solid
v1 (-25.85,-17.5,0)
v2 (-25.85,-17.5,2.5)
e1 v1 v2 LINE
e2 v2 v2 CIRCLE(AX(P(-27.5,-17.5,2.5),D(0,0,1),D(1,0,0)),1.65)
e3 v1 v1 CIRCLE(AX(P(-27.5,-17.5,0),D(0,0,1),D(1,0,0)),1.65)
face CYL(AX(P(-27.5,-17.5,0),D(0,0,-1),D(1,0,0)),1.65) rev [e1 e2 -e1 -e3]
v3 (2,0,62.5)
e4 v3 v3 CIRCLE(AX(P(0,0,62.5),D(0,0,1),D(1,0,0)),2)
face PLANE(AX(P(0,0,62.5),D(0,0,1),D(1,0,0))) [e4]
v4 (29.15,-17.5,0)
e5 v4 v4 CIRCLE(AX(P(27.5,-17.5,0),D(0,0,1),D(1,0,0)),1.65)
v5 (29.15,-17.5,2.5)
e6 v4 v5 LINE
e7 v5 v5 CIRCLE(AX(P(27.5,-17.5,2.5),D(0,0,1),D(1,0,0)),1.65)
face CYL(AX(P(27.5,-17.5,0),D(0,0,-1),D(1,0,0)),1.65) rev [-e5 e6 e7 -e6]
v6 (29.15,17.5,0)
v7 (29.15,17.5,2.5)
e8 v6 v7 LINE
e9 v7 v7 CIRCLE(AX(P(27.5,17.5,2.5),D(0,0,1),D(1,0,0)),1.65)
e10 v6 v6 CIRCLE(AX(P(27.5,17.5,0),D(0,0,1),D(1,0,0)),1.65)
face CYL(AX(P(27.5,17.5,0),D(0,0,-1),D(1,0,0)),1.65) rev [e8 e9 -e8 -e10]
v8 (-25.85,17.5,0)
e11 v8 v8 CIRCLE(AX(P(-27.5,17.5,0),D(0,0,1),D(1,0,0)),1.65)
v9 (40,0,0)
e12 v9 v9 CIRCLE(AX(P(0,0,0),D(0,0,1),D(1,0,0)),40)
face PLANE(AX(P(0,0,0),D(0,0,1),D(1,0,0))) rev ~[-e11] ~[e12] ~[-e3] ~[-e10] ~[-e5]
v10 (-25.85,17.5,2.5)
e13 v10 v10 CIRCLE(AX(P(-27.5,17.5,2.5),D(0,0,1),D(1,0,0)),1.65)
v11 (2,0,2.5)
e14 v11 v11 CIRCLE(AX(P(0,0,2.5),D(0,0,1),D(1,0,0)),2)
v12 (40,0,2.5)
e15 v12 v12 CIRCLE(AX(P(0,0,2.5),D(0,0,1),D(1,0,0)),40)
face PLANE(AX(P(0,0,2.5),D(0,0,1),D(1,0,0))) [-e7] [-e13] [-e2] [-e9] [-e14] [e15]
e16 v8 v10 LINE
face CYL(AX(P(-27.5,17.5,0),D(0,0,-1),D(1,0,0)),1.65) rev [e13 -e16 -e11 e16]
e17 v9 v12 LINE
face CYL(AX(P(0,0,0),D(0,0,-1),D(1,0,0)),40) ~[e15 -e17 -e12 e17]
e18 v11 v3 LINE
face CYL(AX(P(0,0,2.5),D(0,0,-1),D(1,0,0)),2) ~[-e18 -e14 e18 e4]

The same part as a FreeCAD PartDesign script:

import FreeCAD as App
import Part
import Sketcher
Q = App.Units.Quantity

doc = App.newDocument("Part")
body = doc.addObject("PartDesign::Body", "Body")

sketch1 = body.newObject("Sketcher::SketchObject", "Sketch")
sketch1.AttachmentSupport = (doc.getObject("XY_Plane"), [""])
sketch1.MapMode = "FlatFace"
sketch1.addGeometry([
    Part.Circle(App.Vector(0, 0, 0), App.Vector(0, 0, 1), 40),
    Part.Circle(App.Vector(-27.5, -17.5, 0), App.Vector(0, 0, 1), 1.6),
    Part.Circle(App.Vector(27.5, -17.5, 0), App.Vector(0, 0, 1), 1.6),
    Part.Circle(App.Vector(-27.5, 17.5, 0), App.Vector(0, 0, 1), 1.6),
    Part.Circle(App.Vector(27.5, 17.5, 0), App.Vector(0, 0, 1), 1.6),
], False)
sketch1.addConstraint([
    Sketcher.Constraint("Coincident", 0, 3, -1, 1),
    Sketcher.Constraint("Equal", 1, 2),
    Sketcher.Constraint("Equal", 2, 3),
    Sketcher.Constraint("Equal", 3, 4),
    Sketcher.Constraint("Symmetric", 2, 3, 3, 3, -1, 1),
    Sketcher.Constraint("Symmetric", 1, 3, 4, 3, -1, 1),
    Sketcher.Constraint("Symmetric", 1, 3, 2, 3, -2),
    Sketcher.Constraint("Diameter", 0, Q("80 mm")),
    Sketcher.Constraint("Diameter", 1, Q("3.3 mm")),
    Sketcher.Constraint("DistanceX", 1, 3, 2, 3, Q("55 mm")),
    Sketcher.Constraint("DistanceY", 1, 3, 3, 3, Q("35 mm")),
])
pad1 = body.newObject("PartDesign::Pad", "Pad")
pad1.Profile = sketch1
pad1.Length = 2.5

sketch2 = body.newObject("Sketcher::SketchObject", "Sketch001")
sketch2.AttachmentSupport = (doc.getObject("XY_Plane"), [""])
sketch2.MapMode = "FlatFace"
sketch2.AttachmentOffset = App.Placement(App.Vector(0, 0, 2.5), App.Rotation())
sketch2.addGeometry(Part.Circle(App.Vector(0, 0, 0), App.Vector(0, 0, 1), 2), False)
sketch2.addConstraint([
    Sketcher.Constraint("Coincident", 0, 3, -1, 1),
    Sketcher.Constraint("Diameter", 0, Q("4 mm")),
])
pad2 = body.newObject("PartDesign::Pad", "Pad001")
pad2.Profile = sketch2
pad2.Length = 60

doc.recompute()
